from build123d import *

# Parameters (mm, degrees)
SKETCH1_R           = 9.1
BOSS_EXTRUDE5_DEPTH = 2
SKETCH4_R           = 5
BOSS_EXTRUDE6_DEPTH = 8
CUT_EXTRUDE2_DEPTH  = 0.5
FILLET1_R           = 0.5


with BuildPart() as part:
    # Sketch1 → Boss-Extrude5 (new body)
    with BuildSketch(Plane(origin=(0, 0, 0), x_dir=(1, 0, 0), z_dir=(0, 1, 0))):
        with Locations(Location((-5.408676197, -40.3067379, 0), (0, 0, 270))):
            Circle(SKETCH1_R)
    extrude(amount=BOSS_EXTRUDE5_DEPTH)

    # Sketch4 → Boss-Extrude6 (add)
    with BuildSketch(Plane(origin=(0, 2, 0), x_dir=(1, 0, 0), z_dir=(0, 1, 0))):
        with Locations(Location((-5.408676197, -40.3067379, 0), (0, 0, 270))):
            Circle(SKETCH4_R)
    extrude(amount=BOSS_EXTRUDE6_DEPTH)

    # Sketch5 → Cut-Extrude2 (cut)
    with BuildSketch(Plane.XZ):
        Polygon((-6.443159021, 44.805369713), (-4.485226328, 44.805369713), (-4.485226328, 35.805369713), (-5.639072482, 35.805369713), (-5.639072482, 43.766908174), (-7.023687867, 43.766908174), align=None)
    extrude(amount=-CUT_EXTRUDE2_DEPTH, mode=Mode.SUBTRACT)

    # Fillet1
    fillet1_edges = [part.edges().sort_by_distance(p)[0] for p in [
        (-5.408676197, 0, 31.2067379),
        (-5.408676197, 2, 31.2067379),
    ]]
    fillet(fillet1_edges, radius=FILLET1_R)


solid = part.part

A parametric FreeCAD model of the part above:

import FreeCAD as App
import Part
import Sketcher
from FreeCAD import Vector
Q = App.Units.Quantity


def edges_at(feature, points):
    """Names of the edges that pass closest to the given points."""
    edges = feature.Shape.Edges
    near = lambda p: min(range(len(edges)), key=lambda i: edges[i].distToShape(Part.Vertex(*p))[0])
    return sorted({f"Edge{near(p) + 1}" for p in points})

doc = App.newDocument("Part")
params = doc.addObject("Spreadsheet::Sheet", "Params")
for row, (alias, value) in enumerate([
    ("sketch1_diameter", "18.2 mm"),
    ("pad1_length", "2 mm"),
    ("sketch2_diameter", "10 mm"),
    ("pad2_length", "8 mm"),
    ("sketch3_height", "9 mm"),
    ("pocket1_length", "0.5 mm"),
    ("fillet_radius", "0.5 mm"),
], start=1):
    params.set(f"A{row}", alias)
    params.set(f"B{row}", "=" + value)
    params.setAlias(f"B{row}", alias)

body = doc.addObject("PartDesign::Body", "Body")

# Sketch on XZ plane
sketch1 = doc.addObject("Sketcher::SketchObject", "Sketch")
body.addObject(sketch1)
sketch1.AttachmentSupport = (doc.XZ_Plane, [""])
sketch1.MapMode = "FlatFace"
sketch1.addGeometry(Part.Circle(Vector(-5, 40, 0), Vector(0, 0, 1), 9), False)
sketch1.addConstraint([
    Sketcher.Constraint("Diameter", 0, Q("18.2 mm")),
    Sketcher.Constraint("DistanceX", 0, 3, -1, 1, Q("5.408676 mm")),
    Sketcher.Constraint("DistanceY", -1, 1, 0, 3, Q("40.306738 mm")),
])
sketch1.setExpression("Constraints[0]", "Params.sketch1_diameter")
pad1 = doc.addObject("PartDesign::Pad", "Pad")
body.addObject(pad1)
pad1.Profile = sketch1
pad1.setExpression("Length", "Params.pad1_length")
pad1.Reversed = True

# Sketch on XZ plane
sketch2 = doc.addObject("Sketcher::SketchObject", "Sketch001")
body.addObject(sketch2)
sketch2.AttachmentSupport = (doc.XZ_Plane, [""])
sketch2.MapMode = "FlatFace"
sketch2.AttachmentOffset = App.Placement(Vector(0, 0, -2), App.Rotation())
sketch2.addGeometry(Part.Circle(Vector(-5, 40, 0), Vector(0, 0, 1), 5), False)
sketch2.addConstraint([
    Sketcher.Constraint("Diameter", 0, Q("10 mm")),
    Sketcher.Constraint("DistanceX", 0, 3, -1, 1, Q("5.408676 mm")),
    Sketcher.Constraint("DistanceY", -1, 1, 0, 3, Q("40.306738 mm")),
])
sketch2.setExpression("Constraints[0]", "Params.sketch2_diameter")
pad2 = doc.addObject("PartDesign::Pad", "Pad001")
body.addObject(pad2)
pad2.Profile = sketch2
pad2.setExpression("Length", "Params.pad2_length")
pad2.Reversed = True

# Sketch on XZ plane
sketch3 = doc.addObject("Sketcher::SketchObject", "Sketch002")
body.addObject(sketch3)
sketch3.AttachmentSupport = (doc.XZ_Plane, [""])
sketch3.MapMode = "FlatFace"
sketch3.addGeometry([
    Part.LineSegment(Vector(-4.5, 44.8, 0), Vector(-6.4, 44.8, 0)),  # 0
    Part.LineSegment(Vector(-6.4, 44.8, 0), Vector(-7, 43.8, 0)),  # 1
    Part.LineSegment(Vector(-7, 43.8, 0), Vector(-5.6, 43.8, 0)),  # 2
    Part.LineSegment(Vector(-5.6, 43.8, 0), Vector(-5.6, 35.8, 0)),  # 3
    Part.LineSegment(Vector(-5.6, 35.8, 0), Vector(-4.5, 35.8, 0)),  # 4
    Part.LineSegment(Vector(-4.5, 35.8, 0), Vector(-4.5, 44.8, 0)),  # 5
], False)
sketch3.addConstraint([
    Sketcher.Constraint("Coincident", 0, 2, 1, 1),
    Sketcher.Constraint("Coincident", 1, 2, 2, 1),
    Sketcher.Constraint("Coincident", 2, 2, 3, 1),
    Sketcher.Constraint("Coincident", 3, 2, 4, 1),
    Sketcher.Constraint("Coincident", 4, 2, 5, 1),
    Sketcher.Constraint("Coincident", 5, 2, 0, 1),
    Sketcher.Constraint("Horizontal", 0),
    Sketcher.Constraint("Horizontal", 2),
    Sketcher.Constraint("Vertical", 3),
    Sketcher.Constraint("Horizontal", 4),
    Sketcher.Constraint("Vertical", 5),
    Sketcher.Constraint("DistanceY", 5, 1, 5, 2, Q("9 mm")),
    Sketcher.Constraint("DistanceY", 3, 2, 3, 1, Q("7.961538 mm")),
    Sketcher.Constraint("DistanceX", 0, 2, 0, 1, Q("1.957933 mm")),
    Sketcher.Constraint("DistanceX", 2, 1, 2, 2, Q("1.384615 mm")),
    Sketcher.Constraint("DistanceX", 4, 1, 4, 2, Q("1.153846 mm")),
    Sketcher.Constraint("DistanceX", 0, 2, -1, 1, Q("6.443159 mm")),
    Sketcher.Constraint("DistanceY", -1, 1, 0, 2, Q("44.80537 mm")),
])
sketch3.setExpression("Constraints[11]", "Params.sketch3_height")
pocket1 = doc.addObject("PartDesign::Pocket", "Pocket")
body.addObject(pocket1)
pocket1.Profile = sketch3
pocket1.setExpression("Length", "Params.pocket1_length")
doc.recompute()

fillet = doc.addObject("PartDesign::Fillet", "Fillet")
body.addObject(fillet)
fillet.Base = (pocket1, edges_at(pocket1, [(-5.409, 0, 31.207), (-5.409, 2, 31.207)]))
fillet.setExpression("Radius", "Params.fillet_radius")

doc.recompute()
